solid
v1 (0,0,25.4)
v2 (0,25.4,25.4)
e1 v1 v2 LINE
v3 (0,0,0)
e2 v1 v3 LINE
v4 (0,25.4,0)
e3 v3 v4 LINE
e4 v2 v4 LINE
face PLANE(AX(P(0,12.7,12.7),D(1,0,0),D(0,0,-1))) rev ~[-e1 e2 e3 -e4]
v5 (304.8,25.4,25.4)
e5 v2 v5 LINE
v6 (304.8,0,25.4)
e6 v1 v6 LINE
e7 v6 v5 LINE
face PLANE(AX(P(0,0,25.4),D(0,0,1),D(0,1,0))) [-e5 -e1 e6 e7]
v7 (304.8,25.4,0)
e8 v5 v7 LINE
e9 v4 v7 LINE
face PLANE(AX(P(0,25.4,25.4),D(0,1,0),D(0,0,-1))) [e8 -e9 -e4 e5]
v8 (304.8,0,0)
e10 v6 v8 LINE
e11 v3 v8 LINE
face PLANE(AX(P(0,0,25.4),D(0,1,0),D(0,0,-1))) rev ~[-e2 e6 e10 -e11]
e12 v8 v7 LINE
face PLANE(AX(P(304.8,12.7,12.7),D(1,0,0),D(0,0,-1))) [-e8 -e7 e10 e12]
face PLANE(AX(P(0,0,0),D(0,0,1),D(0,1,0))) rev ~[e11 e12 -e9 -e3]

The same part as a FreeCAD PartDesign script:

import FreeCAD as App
import Part
import Sketcher
from FreeCAD import Vector
Q = App.Units.Quantity

doc = App.newDocument("Part")
body = doc.addObject("PartDesign::Body", "Body")

# Sketch on YZ plane
sketch1 = body.newObject("Sketcher::SketchObject", "Sketch")
sketch1.AttachmentSupport = (doc.getObject("YZ_Plane"), [""])
sketch1.MapMode = "FlatFace"
sketch1.addGeometry(Part.LineSegment(Vector(25, 25, 0), Vector(0, 25, 0)), False)
sketch1.addGeometry(Part.LineSegment(Vector(0, 25, 0), Vector(0, 0, 0)), False)
sketch1.addGeometry(Part.LineSegment(Vector(0, 0, 0), Vector(25, 0, 0)), False)
sketch1.addGeometry(Part.LineSegment(Vector(25, 0, 0), Vector(25, 25, 0)), False)
sketch1.addConstraint(Sketcher.Constraint("Coincident", 0, 2, 1, 1))
sketch1.addConstraint(Sketcher.Constraint("Coincident", 1, 2, 2, 1))
sketch1.addConstraint(Sketcher.Constraint("Coincident", 2, 2, 3, 1))
sketch1.addConstraint(Sketcher.Constraint("Coincident", 3, 2, 0, 1))
sketch1.addConstraint(Sketcher.Constraint("Horizontal", 0))
sketch1.addConstraint(Sketcher.Constraint("Vertical", 1))
sketch1.addConstraint(Sketcher.Constraint("Horizontal", 2))
sketch1.addConstraint(Sketcher.Constraint("Vertical", 3))
sketch1.addConstraint(Sketcher.Constraint("Coincident", 1, 2, -1, 1))
sketch1.addConstraint(Sketcher.Constraint("Equal", 2, 1))
sketch1.addConstraint(Sketcher.Constraint("DistanceX", 0, 2, 0, 1, Q("1 in")))
pad1 = body.newObject("PartDesign::Pad", "Pad")
pad1.Profile = sketch1
pad1.Length = Q("12 in")

doc.recompute()
